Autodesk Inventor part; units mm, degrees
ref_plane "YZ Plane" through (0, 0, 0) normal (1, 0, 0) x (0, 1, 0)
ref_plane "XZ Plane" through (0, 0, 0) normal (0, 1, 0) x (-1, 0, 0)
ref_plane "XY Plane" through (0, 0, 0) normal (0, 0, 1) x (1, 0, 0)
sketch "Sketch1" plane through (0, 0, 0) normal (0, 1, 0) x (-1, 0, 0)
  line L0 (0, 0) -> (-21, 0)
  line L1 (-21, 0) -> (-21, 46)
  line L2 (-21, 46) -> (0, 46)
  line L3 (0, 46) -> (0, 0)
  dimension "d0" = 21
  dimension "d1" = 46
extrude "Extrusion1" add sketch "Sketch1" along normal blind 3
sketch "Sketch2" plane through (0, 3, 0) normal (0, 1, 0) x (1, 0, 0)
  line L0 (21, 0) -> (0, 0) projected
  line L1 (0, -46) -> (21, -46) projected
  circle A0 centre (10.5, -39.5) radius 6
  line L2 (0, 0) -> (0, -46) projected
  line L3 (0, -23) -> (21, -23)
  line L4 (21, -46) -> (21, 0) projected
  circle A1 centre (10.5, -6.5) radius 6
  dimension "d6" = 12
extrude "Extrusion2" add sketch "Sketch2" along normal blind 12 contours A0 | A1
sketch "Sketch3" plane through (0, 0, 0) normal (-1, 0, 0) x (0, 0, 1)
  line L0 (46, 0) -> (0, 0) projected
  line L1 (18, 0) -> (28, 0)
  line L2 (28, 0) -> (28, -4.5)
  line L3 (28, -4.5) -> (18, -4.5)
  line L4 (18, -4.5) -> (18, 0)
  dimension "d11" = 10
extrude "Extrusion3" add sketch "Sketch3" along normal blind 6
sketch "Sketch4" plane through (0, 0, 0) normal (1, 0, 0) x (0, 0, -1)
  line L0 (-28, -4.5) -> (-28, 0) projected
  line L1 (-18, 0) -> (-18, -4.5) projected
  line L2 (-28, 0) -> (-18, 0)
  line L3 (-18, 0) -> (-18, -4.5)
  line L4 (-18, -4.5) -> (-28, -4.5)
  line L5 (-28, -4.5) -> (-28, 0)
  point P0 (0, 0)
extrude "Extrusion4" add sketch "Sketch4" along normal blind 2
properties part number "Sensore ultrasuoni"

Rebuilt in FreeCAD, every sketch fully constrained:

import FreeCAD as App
import Part
import Sketcher

doc = App.newDocument("Part")
body = doc.addObject("PartDesign::Body", "Body")
body.AllowCompound = True

# Sketch on XZ plane
sketch1 = body.newObject("Sketcher::SketchObject", "Sketch")
sketch1.AttachmentSupport = (doc.getObject("XZ_Plane"), [""])
sketch1.MapMode = "FlatFace"
sketch1.addGeometry([
    Part.LineSegment(App.Vector(21, 0, 0), App.Vector(0, 0, 0)),
    Part.LineSegment(App.Vector(0, 0, 0), App.Vector(0, 46, 0)),
    Part.LineSegment(App.Vector(0, 46, 0), App.Vector(21, 46, 0)),
    Part.LineSegment(App.Vector(21, 46, 0), App.Vector(21, 0, 0)),
], False)
sketch1.addConstraint([
    Sketcher.Constraint("Coincident", 0, 2, 1, 1),
    Sketcher.Constraint("Coincident", 1, 2, 2, 1),
    Sketcher.Constraint("Coincident", 2, 2, 3, 1),
    Sketcher.Constraint("Coincident", 3, 2, 0, 1),
    Sketcher.Constraint("Horizontal", 0),
    Sketcher.Constraint("Vertical", 1),
    Sketcher.Constraint("Horizontal", 2),
    Sketcher.Constraint("Vertical", 3),
    Sketcher.Constraint("Coincident", 0, 2, -1, 1),
    Sketcher.Constraint("DistanceX", 0, 2, 0, 1, 21.0),
    Sketcher.Constraint("DistanceY", 1, 1, 1, 2, 46.0),
])
pad1 = body.newObject("PartDesign::Pad", "Pad")
pad1.Profile = sketch1
pad1.Length = 3
pad1.Reversed = True

# Sketch on XZ plane
sketch2 = body.newObject("Sketcher::SketchObject", "Sketch001")
sketch2.AttachmentSupport = (doc.getObject("XZ_Plane"), [""])
sketch2.MapMode = "FlatFace"
sketch2.AttachmentOffset = App.Placement(App.Vector(0, 0, -3), App.Rotation())
sketch2.addGeometry([
    Part.Circle(App.Vector(10.5, 39.5, 0), App.Vector(0, 0, 1), 6),
    Part.Circle(App.Vector(10.5, 6.5, 0), App.Vector(0, 0, 1), 6),
], False)
sketch2.addConstraint([
    Sketcher.Constraint("Equal", 0, 1),
    Sketcher.Constraint("Vertical", 0, 3, 1, 3),
    Sketcher.Constraint("Diameter", 0, 12.0),
    Sketcher.Constraint("DistanceY", 1, 3, 0, 3, 33.0),
    Sketcher.Constraint("DistanceX", -1, 1, 0, 3, 10.5),
    Sketcher.Constraint("DistanceY", -1, 1, 0, 3, 39.5),
])
pad2 = body.newObject("PartDesign::Pad", "Pad001")
pad2.Profile = sketch2
pad2.Length = 12
pad2.Reversed = True

# Sketch on YZ plane
sketch3 = body.newObject("Sketcher::SketchObject", "Sketch002")
sketch3.AttachmentSupport = (doc.getObject("YZ_Plane"), [""])
sketch3.MapMode = "FlatFace"
sketch3.addGeometry([
    Part.LineSegment(App.Vector(-4.5, 28, 0), App.Vector(0, 28, 0)),
    Part.LineSegment(App.Vector(0, 28, 0), App.Vector(0, 18, 0)),
    Part.LineSegment(App.Vector(0, 18, 0), App.Vector(-4.5, 18, 0)),
    Part.LineSegment(App.Vector(-4.5, 18, 0), App.Vector(-4.5, 28, 0)),
], False)
sketch3.addConstraint([
    Sketcher.Constraint("Coincident", 0, 2, 1, 1),
    Sketcher.Constraint("Coincident", 1, 2, 2, 1),
    Sketcher.Constraint("Coincident", 2, 2, 3, 1),
    Sketcher.Constraint("Coincident", 3, 2, 0, 1),
    Sketcher.Constraint("Horizontal", 0),
    Sketcher.Constraint("Vertical", 1),
    Sketcher.Constraint("Horizontal", 2),
    Sketcher.Constraint("Vertical", 3),
    Sketcher.Constraint("PointOnObject", 0, 2, -2),
    Sketcher.Constraint("DistanceY", 1, 2, 1, 1, 10.0),
    Sketcher.Constraint("DistanceX", 0, 1, 0, 2, 4.5),
    Sketcher.Constraint("DistanceY", -1, 1, 0, 2, 28.0),
])
pad3 = body.newObject("PartDesign::Pad", "Pad002")
pad3.Profile = sketch3
pad3.Length = 6
pad3.Reversed = True

# Sketch on YZ plane
sketch4 = body.newObject("Sketcher::SketchObject", "Sketch003")
sketch4.AttachmentSupport = (doc.getObject("YZ_Plane"), [""])
sketch4.MapMode = "FlatFace"
sketch4.addGeometry([
    Part.LineSegment(App.Vector(0, 28, 0), App.Vector(-4.5, 28, 0)),
    Part.LineSegment(App.Vector(-4.5, 28, 0), App.Vector(-4.5, 18, 0)),
    Part.LineSegment(App.Vector(-4.5, 18, 0), App.Vector(0, 18, 0)),
    Part.LineSegment(App.Vector(0, 18, 0), App.Vector(0, 28, 0)),
], False)
sketch4.addConstraint([
    Sketcher.Constraint("Coincident", 0, 2, 1, 1),
    Sketcher.Constraint("Coincident", 1, 2, 2, 1),
    Sketcher.Constraint("Coincident", 2, 2, 3, 1),
    Sketcher.Constraint("Coincident", 3, 2, 0, 1),
    Sketcher.Constraint("Horizontal", 0),
    Sketcher.Constraint("Vertical", 1),
    Sketcher.Constraint("Horizontal", 2),
    Sketcher.Constraint("Vertical", 3),
    Sketcher.Constraint("PointOnObject", 2, 2, -2),
    Sketcher.Constraint("DistanceY", 1, 2, 1, 1, 10.0),
    Sketcher.Constraint("DistanceX", 0, 2, 0, 1, 4.5),
    Sketcher.Constraint("DistanceY", -1, 1, 0, 2, 28.0),
])
pad4 = body.newObject("PartDesign::Pad", "Pad003")
pad4.Profile = sketch4
pad4.Length = 2

doc.recompute()
